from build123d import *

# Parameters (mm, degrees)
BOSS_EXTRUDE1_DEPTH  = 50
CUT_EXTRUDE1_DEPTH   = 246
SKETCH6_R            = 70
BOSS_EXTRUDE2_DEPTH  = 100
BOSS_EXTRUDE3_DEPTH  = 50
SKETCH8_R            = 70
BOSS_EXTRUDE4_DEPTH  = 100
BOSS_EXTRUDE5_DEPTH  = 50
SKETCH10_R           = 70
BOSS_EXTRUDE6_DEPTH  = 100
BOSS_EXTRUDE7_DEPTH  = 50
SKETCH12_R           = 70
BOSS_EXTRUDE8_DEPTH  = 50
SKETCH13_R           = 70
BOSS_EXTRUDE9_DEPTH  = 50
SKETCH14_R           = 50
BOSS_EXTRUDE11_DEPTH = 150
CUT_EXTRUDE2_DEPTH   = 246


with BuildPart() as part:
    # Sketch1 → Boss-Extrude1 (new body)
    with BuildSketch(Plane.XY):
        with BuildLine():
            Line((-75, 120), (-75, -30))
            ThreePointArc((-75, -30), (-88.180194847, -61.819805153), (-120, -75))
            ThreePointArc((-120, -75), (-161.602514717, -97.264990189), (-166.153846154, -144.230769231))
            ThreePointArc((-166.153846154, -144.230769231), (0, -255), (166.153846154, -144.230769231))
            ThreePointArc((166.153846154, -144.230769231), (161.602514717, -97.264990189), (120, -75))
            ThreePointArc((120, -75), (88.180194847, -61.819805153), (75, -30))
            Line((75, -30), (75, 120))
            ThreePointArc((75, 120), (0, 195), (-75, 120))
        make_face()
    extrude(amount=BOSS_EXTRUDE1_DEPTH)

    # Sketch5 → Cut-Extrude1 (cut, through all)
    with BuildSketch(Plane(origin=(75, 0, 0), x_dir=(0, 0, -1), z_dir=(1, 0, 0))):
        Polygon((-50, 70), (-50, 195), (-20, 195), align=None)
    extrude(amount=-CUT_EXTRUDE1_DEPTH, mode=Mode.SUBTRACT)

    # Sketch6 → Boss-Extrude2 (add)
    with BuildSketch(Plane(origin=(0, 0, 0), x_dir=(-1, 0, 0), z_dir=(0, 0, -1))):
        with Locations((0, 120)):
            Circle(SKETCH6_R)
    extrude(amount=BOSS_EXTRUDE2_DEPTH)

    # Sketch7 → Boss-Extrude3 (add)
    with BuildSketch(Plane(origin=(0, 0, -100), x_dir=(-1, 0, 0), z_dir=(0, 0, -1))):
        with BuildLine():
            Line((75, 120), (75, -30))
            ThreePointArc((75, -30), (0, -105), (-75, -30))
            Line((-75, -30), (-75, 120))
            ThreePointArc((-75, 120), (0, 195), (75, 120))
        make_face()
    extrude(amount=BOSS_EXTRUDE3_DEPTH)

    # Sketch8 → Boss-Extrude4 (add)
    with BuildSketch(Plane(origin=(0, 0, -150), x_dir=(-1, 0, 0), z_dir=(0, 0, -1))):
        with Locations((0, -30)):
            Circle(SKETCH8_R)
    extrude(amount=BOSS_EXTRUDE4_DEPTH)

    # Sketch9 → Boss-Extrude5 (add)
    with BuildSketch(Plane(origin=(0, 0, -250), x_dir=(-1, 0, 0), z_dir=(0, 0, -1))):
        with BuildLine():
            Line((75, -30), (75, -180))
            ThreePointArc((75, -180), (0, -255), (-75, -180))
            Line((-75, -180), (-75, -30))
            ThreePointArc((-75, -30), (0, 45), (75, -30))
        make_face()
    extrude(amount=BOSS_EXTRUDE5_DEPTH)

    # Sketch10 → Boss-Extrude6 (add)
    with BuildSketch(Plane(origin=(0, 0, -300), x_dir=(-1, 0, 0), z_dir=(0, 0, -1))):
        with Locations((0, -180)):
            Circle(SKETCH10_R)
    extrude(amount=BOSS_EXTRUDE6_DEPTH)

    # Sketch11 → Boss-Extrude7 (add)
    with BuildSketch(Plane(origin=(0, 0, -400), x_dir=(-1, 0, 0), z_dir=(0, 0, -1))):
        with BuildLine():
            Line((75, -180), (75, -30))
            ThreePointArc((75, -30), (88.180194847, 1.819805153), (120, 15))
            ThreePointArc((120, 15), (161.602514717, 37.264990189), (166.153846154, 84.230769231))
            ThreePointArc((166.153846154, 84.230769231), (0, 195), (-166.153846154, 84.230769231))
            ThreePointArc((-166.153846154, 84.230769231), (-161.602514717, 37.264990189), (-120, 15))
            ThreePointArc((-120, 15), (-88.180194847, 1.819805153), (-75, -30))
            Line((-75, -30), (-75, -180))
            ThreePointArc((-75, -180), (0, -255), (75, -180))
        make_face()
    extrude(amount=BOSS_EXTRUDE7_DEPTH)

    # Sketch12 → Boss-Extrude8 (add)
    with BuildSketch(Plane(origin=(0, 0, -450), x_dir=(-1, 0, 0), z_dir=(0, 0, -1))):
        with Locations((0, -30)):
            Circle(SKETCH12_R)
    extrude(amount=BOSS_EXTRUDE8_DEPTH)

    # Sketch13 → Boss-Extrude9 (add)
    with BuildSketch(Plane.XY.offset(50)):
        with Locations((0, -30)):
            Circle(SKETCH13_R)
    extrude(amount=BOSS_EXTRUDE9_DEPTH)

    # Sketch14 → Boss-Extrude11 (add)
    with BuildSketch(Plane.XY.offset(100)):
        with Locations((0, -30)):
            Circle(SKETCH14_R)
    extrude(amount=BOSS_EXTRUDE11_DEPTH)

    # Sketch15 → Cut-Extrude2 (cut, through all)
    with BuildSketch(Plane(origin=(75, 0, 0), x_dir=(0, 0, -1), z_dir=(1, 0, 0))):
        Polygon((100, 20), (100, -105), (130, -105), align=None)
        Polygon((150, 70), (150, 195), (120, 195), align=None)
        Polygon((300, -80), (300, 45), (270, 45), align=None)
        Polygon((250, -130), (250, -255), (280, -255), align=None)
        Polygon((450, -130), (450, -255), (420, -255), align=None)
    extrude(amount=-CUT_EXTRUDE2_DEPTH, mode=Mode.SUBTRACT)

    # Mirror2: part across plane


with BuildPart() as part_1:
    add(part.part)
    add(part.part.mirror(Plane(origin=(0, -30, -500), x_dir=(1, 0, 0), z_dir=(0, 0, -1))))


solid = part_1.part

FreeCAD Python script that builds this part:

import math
import FreeCAD as App
import Part
import Sketcher

V = App.Vector
Q = App.Units.Quantity

doc = App.newDocument("Part")
params = doc.addObject("Spreadsheet::Sheet", "Params")
for row, (alias, value) in enumerate([
    ("sketch1_radius", "45 mm"),
    ("sketch1_radius2", "50 mm"),
    ("sketch1_radius3", "180 mm"),
    ("sketch1_height", "150 mm"),
    ("pad1_length", "50 mm"),
    ("sketch2_width", "125 mm"),
    ("sketch2_height", "30 mm"),
    ("sketch3_diameter", "140 mm"),
    ("pad2_length", "100 mm"),
    ("sketch4_radius", "75 mm"),
    ("sketch4_height", "150 mm"),
    ("pad3_length", "50 mm"),
    ("sketch5_diameter", "140 mm"),
    ("pad4_length", "100 mm"),
    ("sketch6_radius", "75 mm"),
    ("sketch6_height", "150 mm"),
    ("pad5_length", "50 mm"),
    ("sketch7_diameter", "140 mm"),
    ("pad6_length", "100 mm"),
    ("sketch8_radius", "45 mm"),
    ("sketch8_radius2", "50 mm"),
    ("sketch8_radius3", "180 mm"),
    ("sketch8_height", "150 mm"),
    ("pad7_length", "50 mm"),
    ("sketch9_diameter", "140 mm"),
    ("pad8_length", "50 mm"),
    ("sketch10_diameter", "140 mm"),
    ("pad9_length", "50 mm"),
    ("sketch11_diameter", "100 mm"),
    ("pad10_length", "150 mm"),
    ("sketch12_width", "125 mm"),
    ("sketch12_height", "30 mm"),
], start=1):
    params.set(f"A{row}", alias)
    params.set(f"B{row}", "=" + value)
    params.setAlias(f"B{row}", alias)

body = doc.addObject("PartDesign::Body", "Body")

# Sketch on XY plane
sketch1 = body.newObject("Sketcher::SketchObject", "Sketch")
sketch1.AttachmentSupport = (doc.getObject("XY_Plane"), [""])
sketch1.MapMode = "FlatFace"
sketch1.addGeometry(Part.LineSegment(V(-75, 120, 0), V(-75, -30, 0)), False)
sketch1.addGeometry(Part.ArcOfCircle(Part.Circle(V(-120, -30, 0), V(0, 0, 1), 45), math.radians(-90), math.radians(0)), False)
sketch1.addGeometry(Part.ArcOfCircle(Part.Circle(V(-120, -125, 0), V(0, 0, 1), 50), math.radians(90), math.radians(203)), False)
sketch1.addGeometry(Part.ArcOfCircle(Part.Circle(V(0, -75, 0), V(0, 0, 1), 180), math.radians(-157), math.radians(-23)), False)
sketch1.addGeometry(Part.ArcOfCircle(Part.Circle(V(120, -125, 0), V(0, 0, 1), 50), math.radians(-23), math.radians(90)), False)
sketch1.addGeometry(Part.ArcOfCircle(Part.Circle(V(120, -30, 0), V(0, 0, 1), 45), math.radians(-180), math.radians(-90)), False)
sketch1.addGeometry(Part.LineSegment(V(75, -30, 0), V(75, 120, 0)), False)
sketch1.addGeometry(Part.ArcOfCircle(Part.Circle(V(0, 120, 0), V(0, 0, 1), 75), math.radians(0), math.radians(180)), False)
sketch1.addConstraint(Sketcher.Constraint("Tangent", 0, 2, 1, 2))
sketch1.addConstraint(Sketcher.Constraint("Tangent", 1, 1, 2, 1))
sketch1.addConstraint(Sketcher.Constraint("Tangent", 2, 2, 3, 1))
sketch1.addConstraint(Sketcher.Constraint("Tangent", 3, 2, 4, 1))
sketch1.addConstraint(Sketcher.Constraint("Tangent", 4, 2, 5, 2))
sketch1.addConstraint(Sketcher.Constraint("Tangent", 5, 1, 6, 1))
sketch1.addConstraint(Sketcher.Constraint("Tangent", 6, 2, 7, 1))
sketch1.addConstraint(Sketcher.Constraint("Tangent", 7, 2, 0, 1))
sketch1.addConstraint(Sketcher.Constraint("Vertical", 0))
sketch1.addConstraint(Sketcher.Constraint("Vertical", 6))
sketch1.addConstraint(Sketcher.Constraint("Equal", 2, 4))
sketch1.addConstraint(Sketcher.Constraint("Equal", 1, 5))
sketch1.addConstraint(Sketcher.Constraint("Symmetric", 2, 3, 4, 3, -2))
sketch1.addConstraint(Sketcher.Constraint("PointOnObject", 7, 3, -2))
sketch1.addConstraint(Sketcher.Constraint("Horizontal", 3, 3, 1, 1))
sketch1.addConstraint(Sketcher.Constraint("Vertical", 1, 3, 2, 3))
sketch1.addConstraint(Sketcher.Constraint("Radius", 1, Q("45 mm")))
sketch1.addConstraint(Sketcher.Constraint("Radius", 2, Q("50 mm")))
sketch1.addConstraint(Sketcher.Constraint("Radius", 3, Q("180 mm")))
sketch1.addConstraint(Sketcher.Constraint("DistanceY", 0, 2, 0, 1, Q("150 mm")))
sketch1.addConstraint(Sketcher.Constraint("DistanceY", 1, 3, -1, 1, Q("30 mm")))
sketch1.setExpression("Constraints[16]", "Params.sketch1_radius")
sketch1.setExpression("Constraints[17]", "Params.sketch1_radius2")
sketch1.setExpression("Constraints[18]", "Params.sketch1_radius3")
sketch1.setExpression("Constraints[19]", "Params.sketch1_height")
pad1 = body.newObject("PartDesign::Pad", "Pad")
pad1.Profile = sketch1
pad1.setExpression("Length", "Params.pad1_length")

# Sketch on YZ plane
sketch2 = body.newObject("Sketcher::SketchObject", "Sketch001")
sketch2.AttachmentSupport = (doc.getObject("YZ_Plane"), [""])
sketch2.MapMode = "FlatFace"
sketch2.AttachmentOffset = App.Placement(V(0, 0, 75), App.Rotation())
sketch2.addGeometry(Part.LineSegment(V(195, 50, 0), V(70, 50, 0)), False)
sketch2.addGeometry(Part.LineSegment(V(70, 50, 0), V(195, 20, 0)), False)
sketch2.addGeometry(Part.LineSegment(V(195, 20, 0), V(195, 50, 0)), False)
sketch2.addConstraint(Sketcher.Constraint("Coincident", 0, 2, 1, 1))
sketch2.addConstraint(Sketcher.Constraint("Coincident", 1, 2, 2, 1))
sketch2.addConstraint(Sketcher.Constraint("Coincident", 2, 2, 0, 1))
sketch2.addConstraint(Sketcher.Constraint("Horizontal", 0))
sketch2.addConstraint(Sketcher.Constraint("Vertical", 2))
sketch2.addConstraint(Sketcher.Constraint("DistanceX", 0, 2, 0, 1, Q("125 mm")))
sketch2.addConstraint(Sketcher.Constraint("DistanceY", 2, 1, 2, 2, Q("30 mm")))
sketch2.addConstraint(Sketcher.Constraint("DistanceX", -1, 1, 0, 2, Q("70 mm")))
sketch2.addConstraint(Sketcher.Constraint("DistanceY", -1, 1, 0, 2, Q("50 mm")))
sketch2.setExpression("Constraints[5]", "Params.sketch2_width")
sketch2.setExpression("Constraints[6]", "Params.sketch2_height")
pocket1 = body.newObject("PartDesign::Pocket", "Pocket")
pocket1.Profile = sketch2
pocket1.Type = "ThroughAll"

# Sketch on XY plane
sketch3 = body.newObject("Sketcher::SketchObject", "Sketch002")
sketch3.AttachmentSupport = (doc.getObject("XY_Plane"), [""])
sketch3.MapMode = "FlatFace"
sketch3.addGeometry(Part.Circle(V(0, 120, 0), V(0, 0, 1), 70), False)
sketch3.addConstraint(Sketcher.Constraint("PointOnObject", 0, 3, -2))
sketch3.addConstraint(Sketcher.Constraint("Diameter", 0, Q("140 mm")))
sketch3.addConstraint(Sketcher.Constraint("DistanceY", -1, 1, 0, 3, Q("120 mm")))
sketch3.setExpression("Constraints[1]", "Params.sketch3_diameter")
pad2 = body.newObject("PartDesign::Pad", "Pad001")
pad2.Profile = sketch3
pad2.setExpression("Length", "Params.pad2_length")
pad2.Reversed = True

# Sketch on XY plane
sketch4 = body.newObject("Sketcher::SketchObject", "Sketch003")
sketch4.AttachmentSupport = (doc.getObject("XY_Plane"), [""])
sketch4.MapMode = "FlatFace"
sketch4.AttachmentOffset = App.Placement(V(0, 0, -100), App.Rotation())
sketch4.addGeometry(Part.LineSegment(V(-75, -30, 0), V(-75, 120, 0)), False)
sketch4.addGeometry(Part.ArcOfCircle(Part.Circle(V(0, 120, 0), V(0, 0, 1), 75), math.radians(0), math.radians(180)), False)
sketch4.addGeometry(Part.LineSegment(V(75, 120, 0), V(75, -30, 0)), False)
sketch4.addGeometry(Part.ArcOfCircle(Part.Circle(V(0, -30, 0), V(0, 0, 1), 75), math.radians(180), math.radians(360)), False)
sketch4.addConstraint(Sketcher.Constraint("Tangent", 0, 2, 1, 2))
sketch4.addConstraint(Sketcher.Constraint("Tangent", 1, 1, 2, 1))
sketch4.addConstraint(Sketcher.Constraint("Tangent", 2, 2, 3, 2))
sketch4.addConstraint(Sketcher.Constraint("Tangent", 3, 1, 0, 1))
sketch4.addConstraint(Sketcher.Constraint("Vertical", 0))
sketch4.addConstraint(Sketcher.Constraint("Vertical", 2))
sketch4.addConstraint(Sketcher.Constraint("PointOnObject", 1, 3, -2))
sketch4.addConstraint(Sketcher.Constraint("Radius", 1, Q("75 mm")))
sketch4.addConstraint(Sketcher.Constraint("DistanceY", 0, 1, 0, 2, Q("150 mm")))
sketch4.addConstraint(Sketcher.Constraint("DistanceY", -1, 1, 1, 3, Q("120 mm")))
sketch4.setExpression("Constraints[7]", "Params.sketch4_radius")
sketch4.setExpression("Constraints[8]", "Params.sketch4_height")
pad3 = body.newObject("PartDesign::Pad", "Pad002")
pad3.Profile = sketch4
pad3.setExpression("Length", "Params.pad3_length")
pad3.Reversed = True

# Sketch on XY plane
sketch5 = body.newObject("Sketcher::SketchObject", "Sketch004")
sketch5.AttachmentSupport = (doc.getObject("XY_Plane"), [""])
sketch5.MapMode = "FlatFace"
sketch5.AttachmentOffset = App.Placement(V(0, 0, -150), App.Rotation())
sketch5.addGeometry(Part.Circle(V(0, -30, 0), V(0, 0, 1), 70), False)
sketch5.addConstraint(Sketcher.Constraint("PointOnObject", 0, 3, -2))
sketch5.addConstraint(Sketcher.Constraint("Diameter", 0, Q("140 mm")))
sketch5.addConstraint(Sketcher.Constraint("DistanceY", 0, 3, -1, 1, Q("30 mm")))
sketch5.setExpression("Constraints[1]", "Params.sketch5_diameter")
pad4 = body.newObject("PartDesign::Pad", "Pad003")
pad4.Profile = sketch5
pad4.setExpression("Length", "Params.pad4_length")
pad4.Reversed = True

# Sketch on XY plane
sketch6 = body.newObject("Sketcher::SketchObject", "Sketch005")
sketch6.AttachmentSupport = (doc.getObject("XY_Plane"), [""])
sketch6.MapMode = "FlatFace"
sketch6.AttachmentOffset = App.Placement(V(0, 0, -250), App.Rotation())
sketch6.addGeometry(Part.LineSegment(V(-75, -180, 0), V(-75, -30, 0)), False)
sketch6.addGeometry(Part.ArcOfCircle(Part.Circle(V(0, -30, 0), V(0, 0, 1), 75), math.radians(0), math.radians(180)), False)
sketch6.addGeometry(Part.LineSegment(V(75, -30, 0), V(75, -180, 0)), False)
sketch6.addGeometry(Part.ArcOfCircle(Part.Circle(V(0, -180, 0), V(0, 0, 1), 75), math.radians(180), math.radians(360)), False)
sketch6.addConstraint(Sketcher.Constraint("Tangent", 0, 2, 1, 2))
sketch6.addConstraint(Sketcher.Constraint("Tangent", 1, 1, 2, 1))
sketch6.addConstraint(Sketcher.Constraint("Tangent", 2, 2, 3, 2))
sketch6.addConstraint(Sketcher.Constraint("Tangent", 3, 1, 0, 1))
sketch6.addConstraint(Sketcher.Constraint("Vertical", 0))
sketch6.addConstraint(Sketcher.Constraint("Vertical", 2))
sketch6.addConstraint(Sketcher.Constraint("PointOnObject", 1, 3, -2))
sketch6.addConstraint(Sketcher.Constraint("Radius", 1, Q("75 mm")))
sketch6.addConstraint(Sketcher.Constraint("DistanceY", 0, 1, 0, 2, Q("150 mm")))
sketch6.addConstraint(Sketcher.Constraint("DistanceY", 1, 3, -1, 1, Q("30 mm")))
sketch6.setExpression("Constraints[7]", "Params.sketch6_radius")
sketch6.setExpression("Constraints[8]", "Params.sketch6_height")
pad5 = body.newObject("PartDesign::Pad", "Pad004")
pad5.Profile = sketch6
pad5.setExpression("Length", "Params.pad5_length")
pad5.Reversed = True

# Sketch on XY plane
sketch7 = body.newObject("Sketcher::SketchObject", "Sketch006")
sketch7.AttachmentSupport = (doc.getObject("XY_Plane"), [""])
sketch7.MapMode = "FlatFace"
sketch7.AttachmentOffset = App.Placement(V(0, 0, -300), App.Rotation())
sketch7.addGeometry(Part.Circle(V(0, -180, 0), V(0, 0, 1), 70), False)
sketch7.addConstraint(Sketcher.Constraint("PointOnObject", 0, 3, -2))
sketch7.addConstraint(Sketcher.Constraint("Diameter", 0, Q("140 mm")))
sketch7.addConstraint(Sketcher.Constraint("DistanceY", 0, 3, -1, 1, Q("180 mm")))
sketch7.setExpression("Constraints[1]", "Params.sketch7_diameter")
pad6 = body.newObject("PartDesign::Pad", "Pad005")
pad6.Profile = sketch7
pad6.setExpression("Length", "Params.pad6_length")
pad6.Reversed = True

# Sketch on XY plane
sketch8 = body.newObject("Sketcher::SketchObject", "Sketch007")
sketch8.AttachmentSupport = (doc.getObject("XY_Plane"), [""])
sketch8.MapMode = "FlatFace"
sketch8.AttachmentOffset = App.Placement(V(0, 0, -400), App.Rotation())
sketch8.addGeometry(Part.LineSegment(V(-75, -180, 0), V(-75, -30, 0)), False)
sketch8.addGeometry(Part.ArcOfCircle(Part.Circle(V(-120, -30, 0), V(0, 0, 1), 45), math.radians(0), math.radians(90)), False)
sketch8.addGeometry(Part.ArcOfCircle(Part.Circle(V(-120, 65, 0), V(0, 0, 1), 50), math.radians(157), math.radians(270)), False)
sketch8.addGeometry(Part.ArcOfCircle(Part.Circle(V(0, 15, 0), V(0, 0, 1), 180), math.radians(23), math.radians(157)), False)
sketch8.addGeometry(Part.ArcOfCircle(Part.Circle(V(120, 65, 0), V(0, 0, 1), 50), math.radians(-90), math.radians(23)), False)
sketch8.addGeometry(Part.ArcOfCircle(Part.Circle(V(120, -30, 0), V(0, 0, 1), 45), math.radians(90), math.radians(180)), False)
sketch8.addGeometry(Part.LineSegment(V(75, -30, 0), V(75, -180, 0)), False)
sketch8.addGeometry(Part.ArcOfCircle(Part.Circle(V(0, -180, 0), V(0, 0, 1), 75), math.radians(180), math.radians(360)), False)
sketch8.addConstraint(Sketcher.Constraint("Tangent", 0, 2, 1, 1))
sketch8.addConstraint(Sketcher.Constraint("Tangent", 1, 2, 2, 2))
sketch8.addConstraint(Sketcher.Constraint("Tangent", 2, 1, 3, 2))
sketch8.addConstraint(Sketcher.Constraint("Tangent", 3, 1, 4, 2))
sketch8.addConstraint(Sketcher.Constraint("Tangent", 4, 1, 5, 1))
sketch8.addConstraint(Sketcher.Constraint("Tangent", 5, 2, 6, 1))
sketch8.addConstraint(Sketcher.Constraint("Tangent", 6, 2, 7, 2))
sketch8.addConstraint(Sketcher.Constraint("Tangent", 7, 1, 0, 1))
sketch8.addConstraint(Sketcher.Constraint("Vertical", 0))
sketch8.addConstraint(Sketcher.Constraint("Vertical", 6))
sketch8.addConstraint(Sketcher.Constraint("Equal", 2, 4))
sketch8.addConstraint(Sketcher.Constraint("Equal", 1, 5))
sketch8.addConstraint(Sketcher.Constraint("Symmetric", 2, 3, 4, 3, -2))
sketch8.addConstraint(Sketcher.Constraint("PointOnObject", 7, 3, -2))
sketch8.addConstraint(Sketcher.Constraint("Horizontal", 3, 3, 1, 2))
sketch8.addConstraint(Sketcher.Constraint("Vertical", 1, 3, 2, 3))
sketch8.addConstraint(Sketcher.Constraint("Radius", 1, Q("45 mm")))
sketch8.addConstraint(Sketcher.Constraint("Radius", 2, Q("50 mm")))
sketch8.addConstraint(Sketcher.Constraint("Radius", 3, Q("180 mm")))
sketch8.addConstraint(Sketcher.Constraint("DistanceY", 0, 1, 0, 2, Q("150 mm")))
sketch8.addConstraint(Sketcher.Constraint("DistanceY", 1, 3, -1, 1, Q("30 mm")))
sketch8.setExpression("Constraints[16]", "Params.sketch8_radius")
sketch8.setExpression("Constraints[17]", "Params.sketch8_radius2")
sketch8.setExpression("Constraints[18]", "Params.sketch8_radius3")
sketch8.setExpression("Constraints[19]", "Params.sketch8_height")
pad7 = body.newObject("PartDesign::Pad", "Pad006")
pad7.Profile = sketch8
pad7.setExpression("Length", "Params.pad7_length")
pad7.Reversed = True

# Sketch on XY plane
sketch9 = body.newObject("Sketcher::SketchObject", "Sketch008")
sketch9.AttachmentSupport = (doc.getObject("XY_Plane"), [""])
sketch9.MapMode = "FlatFace"
sketch9.AttachmentOffset = App.Placement(V(0, 0, -450), App.Rotation())
sketch9.addGeometry(Part.Circle(V(0, -30, 0), V(0, 0, 1), 70), False)
sketch9.addConstraint(Sketcher.Constraint("PointOnObject", 0, 3, -2))
sketch9.addConstraint(Sketcher.Constraint("Diameter", 0, Q("140 mm")))
sketch9.addConstraint(Sketcher.Constraint("DistanceY", 0, 3, -1, 1, Q("30 mm")))
sketch9.setExpression("Constraints[1]", "Params.sketch9_diameter")
pad8 = body.newObject("PartDesign::Pad", "Pad007")
pad8.Profile = sketch9
pad8.setExpression("Length", "Params.pad8_length")
pad8.Reversed = True

# Sketch on XY plane
sketch10 = body.newObject("Sketcher::SketchObject", "Sketch009")
sketch10.AttachmentSupport = (doc.getObject("XY_Plane"), [""])
sketch10.MapMode = "FlatFace"
sketch10.AttachmentOffset = App.Placement(V(0, 0, 50), App.Rotation())
sketch10.addGeometry(Part.Circle(V(0, -30, 0), V(0, 0, 1), 70), False)
sketch10.addConstraint(Sketcher.Constraint("PointOnObject", 0, 3, -2))
sketch10.addConstraint(Sketcher.Constraint("Diameter", 0, Q("140 mm")))
sketch10.addConstraint(Sketcher.Constraint("DistanceY", 0, 3, -1, 1, Q("30 mm")))
sketch10.setExpression("Constraints[1]", "Params.sketch10_diameter")
pad9 = body.newObject("PartDesign::Pad", "Pad008")
pad9.Profile = sketch10
pad9.setExpression("Length", "Params.pad9_length")

# Sketch on XY plane
sketch11 = body.newObject("Sketcher::SketchObject", "Sketch010")
sketch11.AttachmentSupport = (doc.getObject("XY_Plane"), [""])
sketch11.MapMode = "FlatFace"
sketch11.AttachmentOffset = App.Placement(V(0, 0, 100), App.Rotation())
sketch11.addGeometry(Part.Circle(V(0, -30, 0), V(0, 0, 1), 50), False)
sketch11.addConstraint(Sketcher.Constraint("PointOnObject", 0, 3, -2))
sketch11.addConstraint(Sketcher.Constraint("Diameter", 0, Q("100 mm")))
sketch11.addConstraint(Sketcher.Constraint("DistanceY", 0, 3, -1, 1, Q("30 mm")))
sketch11.setExpression("Constraints[1]", "Params.sketch11_diameter")
pad10 = body.newObject("PartDesign::Pad", "Pad009")
pad10.Profile = sketch11
pad10.setExpression("Length", "Params.pad10_length")

# Sketch on YZ plane
sketch12 = body.newObject("Sketcher::SketchObject", "Sketch011")
sketch12.AttachmentSupport = (doc.getObject("YZ_Plane"), [""])
sketch12.MapMode = "FlatFace"
sketch12.AttachmentOffset = App.Placement(V(0, 0, 75), App.Rotation())
sketch12.addGeometry(Part.LineSegment(V(20, -100, 0), V(-105, -100, 0)), False)
sketch12.addGeometry(Part.LineSegment(V(-105, -100, 0), V(-105, -130, 0)), False)
sketch12.addGeometry(Part.LineSegment(V(-105, -130, 0), V(20, -100, 0)), False)
sketch12.addGeometry(Part.LineSegment(V(70, -150, 0), V(195, -150, 0)), False)
sketch12.addGeometry(Part.LineSegment(V(195, -150, 0), V(195, -120, 0)), False)
sketch12.addGeometry(Part.LineSegment(V(195, -120, 0), V(70, -150, 0)), False)
sketch12.addGeometry(Part.LineSegment(V(-80, -300, 0), V(45, -300, 0)), False)
sketch12.addGeometry(Part.LineSegment(V(45, -300, 0), V(45, -270, 0)), False)
sketch12.addGeometry(Part.LineSegment(V(45, -270, 0), V(-80, -300, 0)), False)
sketch12.addGeometry(Part.LineSegment(V(-130, -250, 0), V(-255, -250, 0)), False)
sketch12.addGeometry(Part.LineSegment(V(-255, -250, 0), V(-255, -280, 0)), False)
sketch12.addGeometry(Part.LineSegment(V(-255, -280, 0), V(-130, -250, 0)), False)
sketch12.addGeometry(Part.LineSegment(V(-255, -450, 0), V(-130, -450, 0)), False)
sketch12.addGeometry(Part.LineSegment(V(-130, -450, 0), V(-255, -420, 0)), False)
sketch12.addGeometry(Part.LineSegment(V(-255, -420, 0), V(-255, -450, 0)), False)
sketch12.addConstraint(Sketcher.Constraint("Coincident", 0, 2, 1, 1))
sketch12.addConstraint(Sketcher.Constraint("Coincident", 1, 2, 2, 1))
sketch12.addConstraint(Sketcher.Constraint("Coincident", 2, 2, 0, 1))
sketch12.addConstraint(Sketcher.Constraint("Coincident", 3, 2, 4, 1))
sketch12.addConstraint(Sketcher.Constraint("Coincident", 4, 2, 5, 1))
sketch12.addConstraint(Sketcher.Constraint("Coincident", 5, 2, 3, 1))
sketch12.addConstraint(Sketcher.Constraint("Coincident", 6, 2, 7, 1))
sketch12.addConstraint(Sketcher.Constraint("Coincident", 7, 2, 8, 1))
sketch12.addConstraint(Sketcher.Constraint("Coincident", 8, 2, 6, 1))
sketch12.addConstraint(Sketcher.Constraint("Coincident", 9, 2, 10, 1))
sketch12.addConstraint(Sketcher.Constraint("Coincident", 10, 2, 11, 1))
sketch12.addConstraint(Sketcher.Constraint("Coincident", 11, 2, 9, 1))
sketch12.addConstraint(Sketcher.Constraint("Coincident", 12, 2, 13, 1))
sketch12.addConstraint(Sketcher.Constraint("Coincident", 13, 2, 14, 1))
sketch12.addConstraint(Sketcher.Constraint("Coincident", 14, 2, 12, 1))
sketch12.addConstraint(Sketcher.Constraint("Horizontal", 0))
sketch12.addConstraint(Sketcher.Constraint("Vertical", 1))
sketch12.addConstraint(Sketcher.Constraint("Horizontal", 3))
sketch12.addConstraint(Sketcher.Constraint("Vertical", 4))
sketch12.addConstraint(Sketcher.Constraint("Horizontal", 6))
sketch12.addConstraint(Sketcher.Constraint("Vertical", 7))
sketch12.addConstraint(Sketcher.Constraint("Horizontal", 9))
sketch12.addConstraint(Sketcher.Constraint("Vertical", 10))
sketch12.addConstraint(Sketcher.Constraint("Horizontal", 12))
sketch12.addConstraint(Sketcher.Constraint("Vertical", 14))
sketch12.addConstraint(Sketcher.Constraint("Parallel", 2, 5))
sketch12.addConstraint(Sketcher.Constraint("Parallel", 5, 8))
sketch12.addConstraint(Sketcher.Constraint("Parallel", 8, 11))
sketch12.addConstraint(Sketcher.Constraint("Vertical", 11, 2, 12, 2))
sketch12.addConstraint(Sketcher.Constraint("Vertical", 10, 2, 13, 2))
sketch12.addConstraint(Sketcher.Constraint("Equal", 0, 3))
sketch12.addConstraint(Sketcher.Constraint("Equal", 3, 6))
sketch12.addConstraint(Sketcher.Constraint("Equal", 6, 9))
sketch12.addConstraint(Sketcher.Constraint("Equal", 10, 14))
sketch12.addConstraint(Sketcher.Constraint("DistanceX", 0, 2, 0, 1, Q("125 mm")))
sketch12.addConstraint(Sketcher.Constraint("DistanceY", 1, 2, 1, 1, Q("30 mm")))
sketch12.addConstraint(Sketcher.Constraint("DistanceX", 0, 2, -1, 1, Q("105 mm")))
sketch12.addConstraint(Sketcher.Constraint("DistanceY", 0, 2, -1, 1, Q("100 mm")))
sketch12.addConstraint(Sketcher.Constraint("DistanceX", -1, 1, 3, 2, Q("195 mm")))
sketch12.addConstraint(Sketcher.Constraint("DistanceY", 3, 2, -1, 1, Q("150 mm")))
sketch12.addConstraint(Sketcher.Constraint("DistanceX", -1, 1, 6, 2, Q("45 mm")))
sketch12.addConstraint(Sketcher.Constraint("DistanceY", 6, 2, -1, 1, Q("300 mm")))
sketch12.addConstraint(Sketcher.Constraint("DistanceX", 9, 2, -1, 1, Q("255 mm")))
sketch12.addConstraint(Sketcher.Constraint("DistanceY", 9, 2, -1, 1, Q("250 mm")))
sketch12.addConstraint(Sketcher.Constraint("DistanceY", 12, 2, -1, 1, Q("450 mm")))
sketch12.setExpression("Constraints[34]", "Params.sketch12_width")
sketch12.setExpression("Constraints[35]", "Params.sketch12_height")
pocket2 = body.newObject("PartDesign::Pocket", "Pocket001")
pocket2.Profile = sketch12
pocket2.Type = "ThroughAll"
body2 = doc.addObject("PartDesign::Body", "Body001")
doc.recompute()

body2.BaseFeature = body
doc.recompute()

mirroring = doc.addObject("Part::Mirroring", "Mirroring")
mirroring.Source = body
mirroring.Base = V(0, -30, -500)
mirroring.Normal = V(0, 0, -1)
body3 = doc.addObject("PartDesign::Body", "Body002")
body3.BaseFeature = mirroring
boolean = body2.newObject("PartDesign::Boolean", "Boolean")
boolean.Type = "Fuse"
boolean.addObjects([body3])
doc.recompute()
mirroring.Visibility = False

doc.recompute()
